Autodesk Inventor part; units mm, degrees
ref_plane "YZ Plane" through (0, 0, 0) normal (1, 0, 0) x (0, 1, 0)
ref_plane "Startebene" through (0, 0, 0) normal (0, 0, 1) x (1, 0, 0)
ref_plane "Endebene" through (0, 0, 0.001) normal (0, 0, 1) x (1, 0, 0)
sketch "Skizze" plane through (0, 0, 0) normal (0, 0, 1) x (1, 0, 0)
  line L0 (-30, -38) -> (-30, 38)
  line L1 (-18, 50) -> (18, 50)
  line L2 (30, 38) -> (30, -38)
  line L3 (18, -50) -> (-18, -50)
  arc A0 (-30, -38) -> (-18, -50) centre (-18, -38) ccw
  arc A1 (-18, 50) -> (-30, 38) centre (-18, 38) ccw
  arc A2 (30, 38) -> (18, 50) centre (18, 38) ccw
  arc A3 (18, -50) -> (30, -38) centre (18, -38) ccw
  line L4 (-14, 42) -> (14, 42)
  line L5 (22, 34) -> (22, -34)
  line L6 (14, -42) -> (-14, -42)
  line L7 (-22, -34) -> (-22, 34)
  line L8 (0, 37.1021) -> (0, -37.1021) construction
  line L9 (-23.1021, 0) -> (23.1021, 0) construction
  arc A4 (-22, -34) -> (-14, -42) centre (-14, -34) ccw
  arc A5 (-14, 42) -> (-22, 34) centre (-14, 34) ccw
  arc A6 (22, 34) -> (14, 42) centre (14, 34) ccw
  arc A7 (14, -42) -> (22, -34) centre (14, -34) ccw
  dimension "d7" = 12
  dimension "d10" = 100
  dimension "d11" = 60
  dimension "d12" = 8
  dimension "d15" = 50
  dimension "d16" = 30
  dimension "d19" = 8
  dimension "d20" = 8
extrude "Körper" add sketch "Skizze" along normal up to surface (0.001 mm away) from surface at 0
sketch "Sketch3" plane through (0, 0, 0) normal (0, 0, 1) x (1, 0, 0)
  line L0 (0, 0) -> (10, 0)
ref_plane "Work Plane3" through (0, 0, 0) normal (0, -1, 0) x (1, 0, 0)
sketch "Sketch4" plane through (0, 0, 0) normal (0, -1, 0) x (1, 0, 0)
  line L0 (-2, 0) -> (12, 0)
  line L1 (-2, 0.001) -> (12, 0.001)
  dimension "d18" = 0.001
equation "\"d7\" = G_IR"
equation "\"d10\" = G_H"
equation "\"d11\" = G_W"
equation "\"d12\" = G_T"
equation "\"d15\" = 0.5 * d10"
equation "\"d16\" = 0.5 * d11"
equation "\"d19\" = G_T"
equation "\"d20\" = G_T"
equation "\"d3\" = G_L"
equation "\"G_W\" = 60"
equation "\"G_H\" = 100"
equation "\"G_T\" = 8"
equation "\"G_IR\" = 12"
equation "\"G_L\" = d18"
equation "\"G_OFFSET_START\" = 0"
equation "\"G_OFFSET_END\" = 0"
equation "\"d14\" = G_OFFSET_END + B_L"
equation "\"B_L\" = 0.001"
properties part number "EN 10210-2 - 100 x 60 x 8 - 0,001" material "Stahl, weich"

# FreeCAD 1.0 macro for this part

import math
import FreeCAD as App
import Part
import Sketcher

V = App.Vector

doc = App.newDocument("Part")
body = doc.addObject("PartDesign::Body", "Body")

# Sketch on XY plane
sketch1 = doc.addObject("Sketcher::SketchObject", "Sketch")
body.addObject(sketch1)
sketch1.AttachmentSupport = (doc.XY_Plane, [""])
sketch1.MapMode = "FlatFace"
sketch1.addGeometry([
    Part.LineSegment(V(-30, 38, 0), V(-30, -38, 0)),  # 0
    Part.ArcOfCircle(Part.Circle(V(-18, -38, 0), V(0, 0, 1), 12), math.radians(180), math.radians(270)),  # 1
    Part.LineSegment(V(-18, -50, 0), V(18, -50, 0)),  # 2
    Part.ArcOfCircle(Part.Circle(V(18, -38, 0), V(0, 0, 1), 12), math.radians(-90), math.radians(0)),  # 3
    Part.LineSegment(V(30, -38, 0), V(30, 38, 0)),  # 4
    Part.ArcOfCircle(Part.Circle(V(18, 38, 0), V(0, 0, 1), 12), math.radians(0), math.radians(90)),  # 5
    Part.LineSegment(V(18, 50, 0), V(-18, 50, 0)),  # 6
    Part.ArcOfCircle(Part.Circle(V(-18, 38, 0), V(0, 0, 1), 12), math.radians(90), math.radians(180)),  # 7
    Part.ArcOfCircle(Part.Circle(V(-14, 34, 0), V(0, 0, 1), 8), math.radians(90), math.radians(180)),  # 8
    Part.LineSegment(V(-14, 42, 0), V(14, 42, 0)),  # 9
    Part.ArcOfCircle(Part.Circle(V(14, 34, 0), V(0, 0, 1), 8), math.radians(0), math.radians(90)),  # 10
    Part.LineSegment(V(22, 34, 0), V(22, -34, 0)),  # 11
    Part.ArcOfCircle(Part.Circle(V(14, -34, 0), V(0, 0, 1), 8), math.radians(-90), math.radians(0)),  # 12
    Part.LineSegment(V(14, -42, 0), V(-14, -42, 0)),  # 13
    Part.ArcOfCircle(Part.Circle(V(-14, -34, 0), V(0, 0, 1), 8), math.radians(180), math.radians(270)),  # 14
    Part.LineSegment(V(-22, -34, 0), V(-22, 34, 0)),  # 15
], False)
sketch1.addConstraint([
    Sketcher.Constraint("Tangent", 0, 2, 1, 1),
    Sketcher.Constraint("Tangent", 1, 2, 2, 1),
    Sketcher.Constraint("Tangent", 2, 2, 3, 1),
    Sketcher.Constraint("Tangent", 3, 2, 4, 1),
    Sketcher.Constraint("Tangent", 4, 2, 5, 1),
    Sketcher.Constraint("Tangent", 5, 2, 6, 1),
    Sketcher.Constraint("Tangent", 6, 2, 7, 1),
    Sketcher.Constraint("Tangent", 7, 2, 0, 1),
    Sketcher.Constraint("Tangent", 8, 1, 9, 1),
    Sketcher.Constraint("Tangent", 9, 2, 10, 2),
    Sketcher.Constraint("Tangent", 10, 1, 11, 1),
    Sketcher.Constraint("Tangent", 11, 2, 12, 2),
    Sketcher.Constraint("Tangent", 12, 1, 13, 1),
    Sketcher.Constraint("Tangent", 13, 2, 14, 2),
    Sketcher.Constraint("Tangent", 14, 1, 15, 1),
    Sketcher.Constraint("Tangent", 15, 2, 8, 2),
    Sketcher.Constraint("Vertical", 0),
    Sketcher.Constraint("Horizontal", 2),
    Sketcher.Constraint("Vertical", 4),
    Sketcher.Constraint("Horizontal", 6),
    Sketcher.Constraint("Horizontal", 9),
    Sketcher.Constraint("Vertical", 11),
    Sketcher.Constraint("Horizontal", 13),
    Sketcher.Constraint("Vertical", 15),
    Sketcher.Constraint("Equal", 1, 3),
    Sketcher.Constraint("Equal", 3, 5),
    Sketcher.Constraint("Equal", 5, 7),
    Sketcher.Constraint("Equal", 8, 10),
    Sketcher.Constraint("Equal", 10, 12),
    Sketcher.Constraint("Equal", 12, 14),
    Sketcher.Constraint("Symmetric", 1, 3, 5, 3, -1, 1),
    Sketcher.Constraint("Symmetric", 8, 3, 12, 3, -1, 1),
    Sketcher.Constraint("Radius", 1, 12.0),
    Sketcher.Constraint("Radius", 8, 8.0),
    Sketcher.Constraint("DistanceX", 0, 2, -1, 1, 30.0),
    Sketcher.Constraint("DistanceY", 1, 2, -1, 1, 50.0),
    Sketcher.Constraint("DistanceY", 8, 1, 6, 2, 8.0),
    Sketcher.Constraint("DistanceX", 10, 1, 4, 2, 8.0),
])
pad1 = doc.addObject("PartDesign::Pad", "Pad")
body.addObject(pad1)
pad1.Profile = sketch1
pad1.Length = 0.001

doc.recompute()
